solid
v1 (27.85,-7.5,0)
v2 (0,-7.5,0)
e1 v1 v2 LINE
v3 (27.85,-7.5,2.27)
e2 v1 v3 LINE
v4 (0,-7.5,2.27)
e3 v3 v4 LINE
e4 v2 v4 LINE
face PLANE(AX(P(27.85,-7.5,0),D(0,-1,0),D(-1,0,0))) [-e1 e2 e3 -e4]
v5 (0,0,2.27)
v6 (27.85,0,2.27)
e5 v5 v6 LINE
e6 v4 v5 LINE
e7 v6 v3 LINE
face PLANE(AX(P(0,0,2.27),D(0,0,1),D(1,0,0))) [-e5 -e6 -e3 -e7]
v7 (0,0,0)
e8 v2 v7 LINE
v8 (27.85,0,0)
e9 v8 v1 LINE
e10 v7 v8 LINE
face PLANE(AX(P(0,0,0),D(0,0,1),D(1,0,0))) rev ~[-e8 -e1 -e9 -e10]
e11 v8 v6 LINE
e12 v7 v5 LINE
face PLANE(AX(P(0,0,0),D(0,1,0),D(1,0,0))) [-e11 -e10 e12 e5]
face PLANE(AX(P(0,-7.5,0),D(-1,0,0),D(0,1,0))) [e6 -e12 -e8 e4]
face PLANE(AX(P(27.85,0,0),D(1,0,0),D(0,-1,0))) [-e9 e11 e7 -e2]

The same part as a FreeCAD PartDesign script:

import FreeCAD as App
import Part
import Sketcher
Q = App.Units.Quantity


def add_polygon(sketch, points):
    """Adds a closed chain of lines whose ends are joined by coincident constraints."""
    first, n = sketch.GeometryCount, len(points)
    for a, b in zip(points, points[1:] + points[:1]):
        sketch.addGeometry(Part.LineSegment(App.Vector(*a, 0), App.Vector(*b, 0)), False)
    for i in range(n):
        sketch.addConstraint(Sketcher.Constraint("Coincident", first + i, 2, first + (i + 1) % n, 1))

doc = App.newDocument("Part")
body = doc.addObject("PartDesign::Body", "Body")

# Sketch on XY plane
sketch1 = body.newObject("Sketcher::SketchObject", "Sketch")
sketch1.AttachmentSupport = (doc.getObject("XY_Plane"), [""])
sketch1.MapMode = "FlatFace"
add_polygon(sketch1, [(28, 0), (0, 0), (0, -8), (28, -8)])  # lines 0-3
sketch1.addConstraint([
    Sketcher.Constraint("Horizontal", 0),
    Sketcher.Constraint("Vertical", 1),
    Sketcher.Constraint("Horizontal", 2),
    Sketcher.Constraint("Vertical", 3),
    Sketcher.Constraint("Coincident", 0, 2, -1, 1),
    Sketcher.Constraint("DistanceY", 1, 2, 1, 1, Q("7.5 mm")),
    Sketcher.Constraint("DistanceX", 0, 2, 0, 1, Q("27.85 mm")),
])
pad1 = body.newObject("PartDesign::Pad", "Pad")
pad1.Profile = sketch1
pad1.Length = 2.27

doc.recompute()
